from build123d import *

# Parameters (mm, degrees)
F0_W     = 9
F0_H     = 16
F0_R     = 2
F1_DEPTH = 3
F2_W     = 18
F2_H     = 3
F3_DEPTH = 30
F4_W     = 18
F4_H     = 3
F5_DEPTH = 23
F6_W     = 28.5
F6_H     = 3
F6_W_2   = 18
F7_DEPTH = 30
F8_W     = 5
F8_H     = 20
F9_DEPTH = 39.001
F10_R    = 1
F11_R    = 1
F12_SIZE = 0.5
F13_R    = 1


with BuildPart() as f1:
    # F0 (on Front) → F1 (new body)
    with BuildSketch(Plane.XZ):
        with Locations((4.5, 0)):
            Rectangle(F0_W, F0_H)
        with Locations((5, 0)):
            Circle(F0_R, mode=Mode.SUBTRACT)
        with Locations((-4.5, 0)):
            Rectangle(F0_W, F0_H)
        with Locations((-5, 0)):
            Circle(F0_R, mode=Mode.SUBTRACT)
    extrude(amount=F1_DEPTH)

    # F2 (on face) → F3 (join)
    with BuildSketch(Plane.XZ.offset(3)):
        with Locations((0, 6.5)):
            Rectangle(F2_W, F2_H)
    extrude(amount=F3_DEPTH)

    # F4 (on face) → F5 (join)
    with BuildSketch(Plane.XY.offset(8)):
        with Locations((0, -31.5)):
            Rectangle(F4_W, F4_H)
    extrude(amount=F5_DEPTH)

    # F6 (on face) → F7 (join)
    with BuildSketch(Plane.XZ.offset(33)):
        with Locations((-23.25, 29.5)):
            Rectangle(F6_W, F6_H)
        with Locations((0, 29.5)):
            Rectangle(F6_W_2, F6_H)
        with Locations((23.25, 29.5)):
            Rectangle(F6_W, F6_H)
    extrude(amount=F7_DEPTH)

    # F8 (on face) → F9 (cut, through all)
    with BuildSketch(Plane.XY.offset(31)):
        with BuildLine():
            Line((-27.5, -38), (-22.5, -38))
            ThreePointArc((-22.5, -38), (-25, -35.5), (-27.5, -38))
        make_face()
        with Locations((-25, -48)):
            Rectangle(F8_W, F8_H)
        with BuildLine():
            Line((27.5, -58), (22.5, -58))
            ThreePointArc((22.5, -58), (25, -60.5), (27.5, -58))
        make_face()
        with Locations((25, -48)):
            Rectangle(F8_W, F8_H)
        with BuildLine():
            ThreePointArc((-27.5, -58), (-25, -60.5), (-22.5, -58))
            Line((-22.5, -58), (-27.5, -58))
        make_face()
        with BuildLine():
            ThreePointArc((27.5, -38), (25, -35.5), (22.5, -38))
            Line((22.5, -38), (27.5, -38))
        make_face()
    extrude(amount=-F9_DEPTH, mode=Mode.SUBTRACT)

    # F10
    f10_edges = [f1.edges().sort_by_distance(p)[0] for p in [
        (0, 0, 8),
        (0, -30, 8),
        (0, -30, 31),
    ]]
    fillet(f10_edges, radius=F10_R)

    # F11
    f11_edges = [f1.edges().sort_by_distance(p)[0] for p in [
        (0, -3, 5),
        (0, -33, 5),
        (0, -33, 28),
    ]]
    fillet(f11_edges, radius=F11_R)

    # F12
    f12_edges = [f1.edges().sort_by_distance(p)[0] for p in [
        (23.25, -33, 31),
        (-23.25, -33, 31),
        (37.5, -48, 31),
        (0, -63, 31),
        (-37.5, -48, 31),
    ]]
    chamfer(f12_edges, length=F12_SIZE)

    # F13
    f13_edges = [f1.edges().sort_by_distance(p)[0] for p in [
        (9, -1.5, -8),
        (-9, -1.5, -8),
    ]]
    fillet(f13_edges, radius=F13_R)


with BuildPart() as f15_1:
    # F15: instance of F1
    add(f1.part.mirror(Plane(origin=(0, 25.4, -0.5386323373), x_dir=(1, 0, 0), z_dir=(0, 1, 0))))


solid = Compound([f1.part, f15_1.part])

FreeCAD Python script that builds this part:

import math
import FreeCAD as App
import Part
import Sketcher
Q = App.Units.Quantity


def edges_at(feature, points):
    """Names of the edges that pass closest to the given points."""
    edges = feature.Shape.Edges
    near = lambda p: min(range(len(edges)), key=lambda i: edges[i].distToShape(Part.Vertex(*p))[0])
    return sorted({f"Edge{near(p) + 1}" for p in points})

doc = App.newDocument("Part")
body = doc.addObject("PartDesign::Body", "Body")

sketch1 = doc.addObject("Sketcher::SketchObject", "Sketch")
body.addObject(sketch1)
sketch1.AttachmentSupport = (doc.XZ_Plane, [""])
sketch1.MapMode = "FlatFace"
sketch1.addGeometry([
    Part.LineSegment(App.Vector(9, -8, 0), App.Vector(9, 8, 0)),
    Part.LineSegment(App.Vector(9, 8, 0), App.Vector(-9, 8, 0)),
    Part.LineSegment(App.Vector(-9, 8, 0), App.Vector(-9, -8, 0)),
    Part.LineSegment(App.Vector(-9, -8, 0), App.Vector(9, -8, 0)),
    Part.Circle(App.Vector(-5, 0, 0), App.Vector(0, 0, 1), 2),
    Part.Circle(App.Vector(5, 0, 0), App.Vector(0, 0, 1), 2),
], False)
sketch1.addConstraint([
    Sketcher.Constraint("Coincident", 0, 2, 1, 1),
    Sketcher.Constraint("Coincident", 1, 2, 2, 1),
    Sketcher.Constraint("Coincident", 2, 2, 3, 1),
    Sketcher.Constraint("Coincident", 3, 2, 0, 1),
    Sketcher.Constraint("Vertical", 0),
    Sketcher.Constraint("Horizontal", 1),
    Sketcher.Constraint("Vertical", 2),
    Sketcher.Constraint("Horizontal", 3),
    Sketcher.Constraint("Equal", 4, 5),
    Sketcher.Constraint("Symmetric", 4, 3, 5, 3, -1, 1),
    Sketcher.Constraint("Symmetric", 0, 2, 2, 2, -1, 1),
    Sketcher.Constraint("PointOnObject", 4, 3, -1),
    Sketcher.Constraint("Diameter", 4, Q("4 mm")),
    Sketcher.Constraint("DistanceX", 1, 2, 1, 1, Q("18 mm")),
    Sketcher.Constraint("DistanceY", 0, 1, 0, 2, Q("16 mm")),
    Sketcher.Constraint("DistanceX", 4, 3, -1, 1, Q("5 mm")),
])
pad1 = doc.addObject("PartDesign::Pad", "Pad")
body.addObject(pad1)
pad1.Profile = sketch1
pad1.Length = 3

sketch2 = doc.addObject("Sketcher::SketchObject", "Sketch001")
body.addObject(sketch2)
sketch2.AttachmentSupport = (doc.XZ_Plane, [""])
sketch2.MapMode = "FlatFace"
sketch2.AttachmentOffset = App.Placement(App.Vector(0, 0, 3), App.Rotation())
sketch2.addGeometry([
    Part.LineSegment(App.Vector(-9, 8, 0), App.Vector(-9, 5, 0)),
    Part.LineSegment(App.Vector(-9, 5, 0), App.Vector(9, 5, 0)),
    Part.LineSegment(App.Vector(9, 5, 0), App.Vector(9, 8, 0)),
    Part.LineSegment(App.Vector(9, 8, 0), App.Vector(-9, 8, 0)),
], False)
sketch2.addConstraint([
    Sketcher.Constraint("Coincident", 0, 2, 1, 1),
    Sketcher.Constraint("Coincident", 1, 2, 2, 1),
    Sketcher.Constraint("Coincident", 2, 2, 3, 1),
    Sketcher.Constraint("Coincident", 3, 2, 0, 1),
    Sketcher.Constraint("Vertical", 0),
    Sketcher.Constraint("Horizontal", 1),
    Sketcher.Constraint("Vertical", 2),
    Sketcher.Constraint("Horizontal", 3),
    Sketcher.Constraint("DistanceX", 1, 1, 1, 2, Q("18 mm")),
    Sketcher.Constraint("DistanceY", 0, 2, 0, 1, Q("3 mm")),
    Sketcher.Constraint("DistanceX", 0, 2, -1, 1, Q("9 mm")),
    Sketcher.Constraint("DistanceY", -1, 1, 0, 2, Q("5 mm")),
])
pad2 = doc.addObject("PartDesign::Pad", "Pad001")
body.addObject(pad2)
pad2.Profile = sketch2
pad2.Length = 30

sketch3 = doc.addObject("Sketcher::SketchObject", "Sketch002")
body.addObject(sketch3)
sketch3.AttachmentSupport = (doc.XY_Plane, [""])
sketch3.MapMode = "FlatFace"
sketch3.AttachmentOffset = App.Placement(App.Vector(0, 0, 8), App.Rotation())
sketch3.addGeometry([
    Part.LineSegment(App.Vector(-9, -30, 0), App.Vector(-9, -33, 0)),
    Part.LineSegment(App.Vector(-9, -33, 0), App.Vector(9, -33, 0)),
    Part.LineSegment(App.Vector(9, -33, 0), App.Vector(9, -30, 0)),
    Part.LineSegment(App.Vector(9, -30, 0), App.Vector(-9, -30, 0)),
], False)
sketch3.addConstraint([
    Sketcher.Constraint("Coincident", 0, 2, 1, 1),
    Sketcher.Constraint("Coincident", 1, 2, 2, 1),
    Sketcher.Constraint("Coincident", 2, 2, 3, 1),
    Sketcher.Constraint("Coincident", 3, 2, 0, 1),
    Sketcher.Constraint("Vertical", 0),
    Sketcher.Constraint("Horizontal", 1),
    Sketcher.Constraint("Vertical", 2),
    Sketcher.Constraint("Horizontal", 3),
    Sketcher.Constraint("DistanceX", 1, 1, 1, 2, Q("18 mm")),
    Sketcher.Constraint("DistanceY", 0, 2, 0, 1, Q("3 mm")),
    Sketcher.Constraint("DistanceX", 0, 2, -1, 1, Q("9 mm")),
    Sketcher.Constraint("DistanceY", 0, 2, -1, 1, Q("33 mm")),
])
pad3 = doc.addObject("PartDesign::Pad", "Pad002")
body.addObject(pad3)
pad3.Profile = sketch3
pad3.Length = 23

sketch4 = doc.addObject("Sketcher::SketchObject", "Sketch003")
body.addObject(sketch4)
sketch4.AttachmentSupport = (doc.XZ_Plane, [""])
sketch4.MapMode = "FlatFace"
sketch4.AttachmentOffset = App.Placement(App.Vector(0, 0, 33), App.Rotation())
sketch4.addGeometry([
    Part.LineSegment(App.Vector(-37.5, 31, 0), App.Vector(-37.5, 28, 0)),
    Part.LineSegment(App.Vector(-37.5, 28, 0), App.Vector(37.5, 28, 0)),
    Part.LineSegment(App.Vector(37.5, 28, 0), App.Vector(37.5, 31, 0)),
    Part.LineSegment(App.Vector(37.5, 31, 0), App.Vector(-37.5, 31, 0)),
], False)
sketch4.addConstraint([
    Sketcher.Constraint("Coincident", 0, 2, 1, 1),
    Sketcher.Constraint("Coincident", 1, 2, 2, 1),
    Sketcher.Constraint("Coincident", 2, 2, 3, 1),
    Sketcher.Constraint("Coincident", 3, 2, 0, 1),
    Sketcher.Constraint("Vertical", 0),
    Sketcher.Constraint("Horizontal", 1),
    Sketcher.Constraint("Vertical", 2),
    Sketcher.Constraint("Horizontal", 3),
    Sketcher.Constraint("DistanceX", 1, 1, 1, 2, Q("75 mm")),
    Sketcher.Constraint("DistanceY", 0, 2, 0, 1, Q("3 mm")),
    Sketcher.Constraint("DistanceY", -1, 1, 0, 2, Q("28 mm")),
    Sketcher.Constraint("DistanceX", 0, 2, -1, 1, Q("37.5 mm")),
])
pad4 = doc.addObject("PartDesign::Pad", "Pad003")
body.addObject(pad4)
pad4.Profile = sketch4
pad4.Length = 30

sketch5 = doc.addObject("Sketcher::SketchObject", "Sketch004")
body.addObject(sketch5)
sketch5.AttachmentSupport = (doc.XY_Plane, [""])
sketch5.MapMode = "FlatFace"
sketch5.AttachmentOffset = App.Placement(App.Vector(0, 0, 31), App.Rotation())
sketch5.addGeometry([
    Part.ArcOfCircle(Part.Circle(App.Vector(-25, -38, 0), App.Vector(0, 0, 1), 2.5), math.radians(0), math.radians(180)),
    Part.LineSegment(App.Vector(-27.5, -38, 0), App.Vector(-27.5, -58, 0)),
    Part.ArcOfCircle(Part.Circle(App.Vector(-25, -58, 0), App.Vector(0, 0, 1), 2.5), math.radians(180), math.radians(360)),
    Part.LineSegment(App.Vector(-22.5, -58, 0), App.Vector(-22.5, -38, 0)),
    Part.ArcOfCircle(Part.Circle(App.Vector(25, -58, 0), App.Vector(0, 0, 1), 2.5), math.radians(180), math.radians(360)),
    Part.LineSegment(App.Vector(27.5, -58, 0), App.Vector(27.5, -38, 0)),
    Part.ArcOfCircle(Part.Circle(App.Vector(25, -38, 0), App.Vector(0, 0, 1), 2.5), math.radians(0), math.radians(180)),
    Part.LineSegment(App.Vector(22.5, -38, 0), App.Vector(22.5, -58, 0)),
], False)
sketch5.addConstraint([
    Sketcher.Constraint("Tangent", 0, 2, 1, 1),
    Sketcher.Constraint("Tangent", 1, 2, 2, 1),
    Sketcher.Constraint("Tangent", 2, 2, 3, 1),
    Sketcher.Constraint("Tangent", 3, 2, 0, 1),
    Sketcher.Constraint("Tangent", 4, 2, 5, 1),
    Sketcher.Constraint("Tangent", 5, 2, 6, 1),
    Sketcher.Constraint("Tangent", 6, 2, 7, 1),
    Sketcher.Constraint("Tangent", 7, 2, 4, 1),
    Sketcher.Constraint("Vertical", 1),
    Sketcher.Constraint("Vertical", 3),
    Sketcher.Constraint("Vertical", 5),
    Sketcher.Constraint("Vertical", 7),
    Sketcher.Constraint("Equal", 2, 4),
    Sketcher.Constraint("Symmetric", 2, 3, 4, 3, -2),
    Sketcher.Constraint("Horizontal", 0, 3, 6, 3),
    Sketcher.Constraint("Radius", 0, Q("2.5 mm")),
    Sketcher.Constraint("DistanceY", 1, 2, 1, 1, Q("20 mm")),
    Sketcher.Constraint("DistanceX", 0, 3, -1, 1, Q("25 mm")),
    Sketcher.Constraint("DistanceY", 0, 3, -1, 1, Q("38 mm")),
])
pocket1 = doc.addObject("PartDesign::Pocket", "Pocket")
body.addObject(pocket1)
pocket1.Profile = sketch5
pocket1.Type = "ThroughAll"
doc.recompute()

fillet = doc.addObject("PartDesign::Fillet", "Fillet")
body.addObject(fillet)
fillet.Base = (pocket1, edges_at(pocket1, [(0, 0, 8), (0, -30, 8), (0, -30, 31)]))
fillet.Radius = 1
doc.recompute()

fillet2 = doc.addObject("PartDesign::Fillet", "Fillet001")
body.addObject(fillet2)
fillet2.Base = (fillet, edges_at(fillet, [(0, -3, 5), (0, -33, 5), (0, -33, 28)]))
fillet2.Radius = 1
doc.recompute()

chamfer = doc.addObject("PartDesign::Chamfer", "Chamfer")
body.addObject(chamfer)
chamfer.Base = (fillet2, edges_at(fillet2, [
    (23.25, -33, 31),
    (-23.25, -33, 31),
    (37.5, -48, 31),
    (0, -63, 31),
    (-37.5, -48, 31),
]))
chamfer.Size = 0.5
doc.recompute()

fillet3 = doc.addObject("PartDesign::Fillet", "Fillet002")
body.addObject(fillet3)
fillet3.Base = (chamfer, edges_at(chamfer, [(9, -1.5, -8), (-9, -1.5, -8)]))
fillet3.Radius = 1
body2 = doc.addObject("PartDesign::Body", "Body001")
doc.recompute()

mirroring = doc.addObject("Part::Mirroring", "Mirroring")
mirroring.Source = body
mirroring.Base = App.Vector(0, 25.4, -0.538632)
mirroring.Normal = App.Vector(0, 1, 0)
body2.BaseFeature = mirroring
doc.recompute()
mirroring.Visibility = False

doc.recompute()
